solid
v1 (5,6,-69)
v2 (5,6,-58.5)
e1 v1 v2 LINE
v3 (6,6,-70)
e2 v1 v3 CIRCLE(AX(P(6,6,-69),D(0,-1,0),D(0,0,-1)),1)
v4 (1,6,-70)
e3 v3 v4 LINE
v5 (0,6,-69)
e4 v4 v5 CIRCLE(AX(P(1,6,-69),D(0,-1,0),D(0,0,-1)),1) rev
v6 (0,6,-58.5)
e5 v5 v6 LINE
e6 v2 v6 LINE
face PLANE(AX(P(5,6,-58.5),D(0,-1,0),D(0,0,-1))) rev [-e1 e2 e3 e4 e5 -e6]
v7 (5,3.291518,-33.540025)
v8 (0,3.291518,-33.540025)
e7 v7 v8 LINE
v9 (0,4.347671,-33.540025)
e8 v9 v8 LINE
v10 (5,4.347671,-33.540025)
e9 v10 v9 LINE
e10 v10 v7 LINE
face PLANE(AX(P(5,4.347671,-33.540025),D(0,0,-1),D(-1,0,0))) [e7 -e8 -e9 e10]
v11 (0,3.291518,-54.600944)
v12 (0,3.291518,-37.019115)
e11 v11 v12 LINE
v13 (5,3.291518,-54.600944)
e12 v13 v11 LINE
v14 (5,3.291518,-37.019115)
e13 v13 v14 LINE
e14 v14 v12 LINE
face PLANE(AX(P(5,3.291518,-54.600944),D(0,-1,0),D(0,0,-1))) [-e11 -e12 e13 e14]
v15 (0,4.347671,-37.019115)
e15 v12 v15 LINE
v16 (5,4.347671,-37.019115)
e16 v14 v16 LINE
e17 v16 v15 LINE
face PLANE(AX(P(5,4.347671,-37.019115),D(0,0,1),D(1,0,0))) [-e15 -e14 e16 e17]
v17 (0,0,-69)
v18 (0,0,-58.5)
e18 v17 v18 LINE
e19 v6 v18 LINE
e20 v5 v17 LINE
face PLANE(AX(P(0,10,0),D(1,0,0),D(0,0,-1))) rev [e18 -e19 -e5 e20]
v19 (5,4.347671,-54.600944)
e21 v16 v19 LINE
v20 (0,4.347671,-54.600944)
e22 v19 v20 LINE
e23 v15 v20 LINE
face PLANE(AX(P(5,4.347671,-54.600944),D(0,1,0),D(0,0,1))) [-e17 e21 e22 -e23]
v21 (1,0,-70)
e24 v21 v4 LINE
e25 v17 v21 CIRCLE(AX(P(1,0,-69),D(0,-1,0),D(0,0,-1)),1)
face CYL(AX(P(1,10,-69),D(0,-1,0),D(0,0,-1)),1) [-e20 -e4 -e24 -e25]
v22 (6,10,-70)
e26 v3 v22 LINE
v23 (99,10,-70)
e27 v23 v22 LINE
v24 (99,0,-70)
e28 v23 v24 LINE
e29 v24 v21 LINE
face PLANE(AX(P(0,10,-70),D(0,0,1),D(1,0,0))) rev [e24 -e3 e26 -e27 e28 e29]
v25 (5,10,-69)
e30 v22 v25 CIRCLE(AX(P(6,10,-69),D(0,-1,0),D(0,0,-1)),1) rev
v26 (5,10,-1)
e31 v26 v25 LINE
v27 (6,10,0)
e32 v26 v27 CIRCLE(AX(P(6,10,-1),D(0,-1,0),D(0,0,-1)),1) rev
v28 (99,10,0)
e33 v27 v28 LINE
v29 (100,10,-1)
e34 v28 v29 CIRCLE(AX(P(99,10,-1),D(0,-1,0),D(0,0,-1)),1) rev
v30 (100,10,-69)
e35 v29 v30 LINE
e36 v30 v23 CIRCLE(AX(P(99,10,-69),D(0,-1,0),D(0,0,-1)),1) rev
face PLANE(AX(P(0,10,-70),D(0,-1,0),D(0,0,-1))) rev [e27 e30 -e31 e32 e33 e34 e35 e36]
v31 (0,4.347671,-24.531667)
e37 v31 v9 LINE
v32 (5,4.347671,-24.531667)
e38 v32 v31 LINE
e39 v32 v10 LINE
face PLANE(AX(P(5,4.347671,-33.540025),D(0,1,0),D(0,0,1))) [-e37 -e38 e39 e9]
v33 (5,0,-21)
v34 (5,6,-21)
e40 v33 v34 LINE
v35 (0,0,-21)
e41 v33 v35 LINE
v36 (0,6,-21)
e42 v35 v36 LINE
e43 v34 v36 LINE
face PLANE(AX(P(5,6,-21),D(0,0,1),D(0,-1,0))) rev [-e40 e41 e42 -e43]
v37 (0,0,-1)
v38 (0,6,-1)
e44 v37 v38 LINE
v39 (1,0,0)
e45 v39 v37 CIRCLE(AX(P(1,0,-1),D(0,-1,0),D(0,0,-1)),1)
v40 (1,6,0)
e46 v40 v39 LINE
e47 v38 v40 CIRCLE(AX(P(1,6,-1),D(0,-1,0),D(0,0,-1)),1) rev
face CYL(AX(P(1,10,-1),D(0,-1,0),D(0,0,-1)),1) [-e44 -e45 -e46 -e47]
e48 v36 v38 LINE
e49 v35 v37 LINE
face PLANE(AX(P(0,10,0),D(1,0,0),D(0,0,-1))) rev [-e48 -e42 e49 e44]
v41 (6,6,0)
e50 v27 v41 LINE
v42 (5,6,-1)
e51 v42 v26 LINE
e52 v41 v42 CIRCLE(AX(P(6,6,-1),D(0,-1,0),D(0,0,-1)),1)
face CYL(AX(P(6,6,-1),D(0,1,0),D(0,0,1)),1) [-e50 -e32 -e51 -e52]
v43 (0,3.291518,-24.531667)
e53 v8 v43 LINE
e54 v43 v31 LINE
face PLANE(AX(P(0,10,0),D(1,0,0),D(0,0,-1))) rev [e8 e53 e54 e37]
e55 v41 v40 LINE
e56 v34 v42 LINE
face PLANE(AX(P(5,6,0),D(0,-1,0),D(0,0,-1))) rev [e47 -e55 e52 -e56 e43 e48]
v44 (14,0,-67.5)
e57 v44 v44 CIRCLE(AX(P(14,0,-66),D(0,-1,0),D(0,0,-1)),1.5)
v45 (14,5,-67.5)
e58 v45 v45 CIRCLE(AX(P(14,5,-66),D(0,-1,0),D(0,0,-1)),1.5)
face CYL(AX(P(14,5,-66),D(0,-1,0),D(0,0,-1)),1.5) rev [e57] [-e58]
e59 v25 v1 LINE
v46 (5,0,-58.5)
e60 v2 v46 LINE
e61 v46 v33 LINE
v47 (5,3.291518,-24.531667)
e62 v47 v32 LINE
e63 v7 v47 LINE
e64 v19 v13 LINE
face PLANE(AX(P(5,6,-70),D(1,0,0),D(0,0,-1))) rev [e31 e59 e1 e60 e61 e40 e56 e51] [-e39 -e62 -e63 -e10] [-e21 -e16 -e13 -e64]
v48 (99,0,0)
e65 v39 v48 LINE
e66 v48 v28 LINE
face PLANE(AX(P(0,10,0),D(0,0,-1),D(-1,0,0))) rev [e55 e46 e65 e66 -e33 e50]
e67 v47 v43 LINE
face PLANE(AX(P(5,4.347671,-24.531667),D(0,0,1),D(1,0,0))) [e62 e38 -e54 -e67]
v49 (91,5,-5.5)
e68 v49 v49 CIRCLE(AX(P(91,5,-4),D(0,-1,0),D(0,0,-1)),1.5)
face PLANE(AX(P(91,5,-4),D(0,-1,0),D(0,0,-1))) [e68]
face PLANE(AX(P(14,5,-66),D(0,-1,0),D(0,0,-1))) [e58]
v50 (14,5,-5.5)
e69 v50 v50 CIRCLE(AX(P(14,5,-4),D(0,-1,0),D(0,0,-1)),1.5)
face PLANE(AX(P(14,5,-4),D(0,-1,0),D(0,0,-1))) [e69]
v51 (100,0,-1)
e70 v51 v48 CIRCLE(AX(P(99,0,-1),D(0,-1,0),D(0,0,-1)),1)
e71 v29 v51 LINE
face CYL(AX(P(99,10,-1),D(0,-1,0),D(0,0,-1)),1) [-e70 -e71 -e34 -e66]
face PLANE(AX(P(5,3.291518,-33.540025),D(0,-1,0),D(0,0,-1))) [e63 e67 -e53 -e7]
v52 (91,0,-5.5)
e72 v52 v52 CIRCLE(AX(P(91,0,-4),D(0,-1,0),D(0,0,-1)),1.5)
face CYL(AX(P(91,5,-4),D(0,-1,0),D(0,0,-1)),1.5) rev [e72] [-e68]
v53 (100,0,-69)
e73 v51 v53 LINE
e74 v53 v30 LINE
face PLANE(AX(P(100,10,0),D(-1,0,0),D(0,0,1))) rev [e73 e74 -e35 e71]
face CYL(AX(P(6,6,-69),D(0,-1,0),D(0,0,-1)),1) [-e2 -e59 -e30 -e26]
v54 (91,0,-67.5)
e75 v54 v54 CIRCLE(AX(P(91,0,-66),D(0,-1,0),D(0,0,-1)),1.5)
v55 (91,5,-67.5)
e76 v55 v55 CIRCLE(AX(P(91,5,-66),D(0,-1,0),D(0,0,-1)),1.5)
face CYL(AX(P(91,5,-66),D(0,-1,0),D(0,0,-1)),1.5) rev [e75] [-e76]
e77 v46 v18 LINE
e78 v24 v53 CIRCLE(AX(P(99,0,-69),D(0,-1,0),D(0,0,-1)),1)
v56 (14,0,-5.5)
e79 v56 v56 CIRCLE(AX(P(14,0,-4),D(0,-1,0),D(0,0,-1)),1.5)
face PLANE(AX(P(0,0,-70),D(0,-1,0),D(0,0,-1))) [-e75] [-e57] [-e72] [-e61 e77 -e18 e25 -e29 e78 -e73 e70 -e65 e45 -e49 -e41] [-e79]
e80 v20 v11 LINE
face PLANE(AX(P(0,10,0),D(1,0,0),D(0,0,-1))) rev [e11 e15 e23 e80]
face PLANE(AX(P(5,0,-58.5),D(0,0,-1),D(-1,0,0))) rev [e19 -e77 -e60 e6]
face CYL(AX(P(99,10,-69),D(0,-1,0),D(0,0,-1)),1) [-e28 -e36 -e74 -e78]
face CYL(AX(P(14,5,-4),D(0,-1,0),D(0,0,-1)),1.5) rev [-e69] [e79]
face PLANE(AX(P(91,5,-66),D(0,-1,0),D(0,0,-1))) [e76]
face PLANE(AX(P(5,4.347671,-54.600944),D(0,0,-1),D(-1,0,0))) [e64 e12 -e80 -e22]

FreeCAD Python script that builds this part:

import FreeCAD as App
import Part
import Sketcher


def edges_at(feature, points):
    """Names of the edges that pass closest to the given points."""
    edges = feature.Shape.Edges
    near = lambda p: min(range(len(edges)), key=lambda i: edges[i].distToShape(Part.Vertex(*p))[0])
    return sorted({f"Edge{near(p) + 1}" for p in points})


def add_polygon(sketch, points):
    """Adds a closed chain of lines whose ends are joined by coincident constraints."""
    first, n = sketch.GeometryCount, len(points)
    for a, b in zip(points, points[1:] + points[:1]):
        sketch.addGeometry(Part.LineSegment(App.Vector(*a, 0), App.Vector(*b, 0)), False)
    for i in range(n):
        sketch.addConstraint(Sketcher.Constraint("Coincident", first + i, 2, first + (i + 1) % n, 1))

doc = App.newDocument("Part")
params = doc.addObject("Spreadsheet::Sheet", "Params")
for row, (alias, value) in enumerate([
    ("sketch1_width", "100 mm"),
    ("sketch1_height", "70 mm"),
    ("pad1_length", "10 mm"),
    ("sketch2_diameter", "3 mm"),
    ("pocket1_length", "5 mm"),
    ("sketch3_width", "4 mm"),
    ("sketch3_width2", "6 mm"),
    ("sketch3_height", "21 mm"),
    ("sketch3_height2", "70 mm"),
    ("sketch3_height3", "11.5 mm"),
    ("pocket2_length", "5 mm"),
    ("fillet_radius", "1 mm"),
], start=1):
    params.set(f"A{row}", alias)
    params.set(f"B{row}", "=" + value)
    params.setAlias(f"B{row}", alias)

body = doc.addObject("PartDesign::Body", "Body")

# Sketch on XZ plane
sketch1 = body.newObject("Sketcher::SketchObject", "Sketch")
sketch1.AttachmentSupport = (doc.getObject("XZ_Plane"), [""])
sketch1.MapMode = "FlatFace"
add_polygon(sketch1, [(0, -70), (0, 0), (100, 0), (100, -70)])  # lines 0-3
sketch1.addConstraint(Sketcher.Constraint("Vertical", 0))
sketch1.addConstraint(Sketcher.Constraint("Horizontal", 1))
sketch1.addConstraint(Sketcher.Constraint("Vertical", 2))
sketch1.addConstraint(Sketcher.Constraint("Horizontal", 3))
sketch1.addConstraint(Sketcher.Constraint("Coincident", 0, 2, -1, 1))
sketch1.addConstraint(Sketcher.Constraint("DistanceX", 1, 1, 1, 2, 100.0))
sketch1.addConstraint(Sketcher.Constraint("DistanceY", 0, 1, 0, 2, 70.0))
sketch1.setExpression("Constraints[9]", "Params.sketch1_width")
sketch1.setExpression("Constraints[10]", "Params.sketch1_height")
pad1 = body.newObject("PartDesign::Pad", "Pad")
pad1.Profile = sketch1
pad1.setExpression("Length", "Params.pad1_length")
pad1.Reversed = True

# Sketch on XZ plane
sketch2 = body.newObject("Sketcher::SketchObject", "Sketch001")
sketch2.AttachmentSupport = (doc.getObject("XZ_Plane"), [""])
sketch2.MapMode = "FlatFace"
sketch2.addGeometry(Part.Circle(App.Vector(14, -4, 0), App.Vector(0, 0, 1), 1.5), False)
sketch2.addGeometry(Part.Circle(App.Vector(14, -66, 0), App.Vector(0, 0, 1), 1.5), False)
sketch2.addGeometry(Part.Circle(App.Vector(91, -66, 0), App.Vector(0, 0, 1), 1.5), False)
sketch2.addGeometry(Part.Circle(App.Vector(91, -4, 0), App.Vector(0, 0, 1), 1.5), False)
sketch2.addConstraint(Sketcher.Constraint("Equal", 0, 1))
sketch2.addConstraint(Sketcher.Constraint("Equal", 1, 2))
sketch2.addConstraint(Sketcher.Constraint("Equal", 2, 3))
sketch2.addConstraint(Sketcher.Constraint("Horizontal", 1, 3, 2, 3))
sketch2.addConstraint(Sketcher.Constraint("Horizontal", 0, 3, 3, 3))
sketch2.addConstraint(Sketcher.Constraint("Vertical", 0, 3, 1, 3))
sketch2.addConstraint(Sketcher.Constraint("Vertical", 2, 3, 3, 3))
sketch2.addConstraint(Sketcher.Constraint("Diameter", 0, 3.0))
sketch2.addConstraint(Sketcher.Constraint("DistanceX", -1, 1, 0, 3, 14.0))
sketch2.addConstraint(Sketcher.Constraint("DistanceY", 0, 3, -1, 1, 4.0))
sketch2.addConstraint(Sketcher.Constraint("DistanceY", 1, 3, -1, 1, 66.0))
sketch2.addConstraint(Sketcher.Constraint("DistanceX", -1, 1, 2, 3, 91.0))
sketch2.setExpression("Constraints[7]", "Params.sketch2_diameter")
pocket1 = body.newObject("PartDesign::Pocket", "Pocket")
pocket1.Profile = sketch2
pocket1.setExpression("Length", "Params.pocket1_length")

# Sketch on YZ plane
sketch3 = body.newObject("Sketcher::SketchObject", "Sketch002")
sketch3.AttachmentSupport = (doc.getObject("YZ_Plane"), [""])
sketch3.MapMode = "FlatFace"
add_polygon(sketch3, [(10, -70), (6, -70), (6, -58.5), (0, -58.5), (0, -21), (6, -21), (6, 0), (10, 0)])  # lines 0-7
add_polygon(sketch3, [(3.3, -33.5), (4.3, -33.5), (4.3, -24.5), (3.3, -24.5)])  # lines 8-11
add_polygon(sketch3, [(3.3, -54.6), (4.3, -54.6), (4.3, -37), (3.3, -37)])  # lines 12-15
sketch3.addConstraint(Sketcher.Constraint("Horizontal", 0))
sketch3.addConstraint(Sketcher.Constraint("Vertical", 1))
sketch3.addConstraint(Sketcher.Constraint("Horizontal", 2))
sketch3.addConstraint(Sketcher.Constraint("Vertical", 3))
sketch3.addConstraint(Sketcher.Constraint("Horizontal", 4))
sketch3.addConstraint(Sketcher.Constraint("Vertical", 5))
sketch3.addConstraint(Sketcher.Constraint("Horizontal", 6))
sketch3.addConstraint(Sketcher.Constraint("Vertical", 7))
sketch3.addConstraint(Sketcher.Constraint("Horizontal", 8))
sketch3.addConstraint(Sketcher.Constraint("Vertical", 9))
sketch3.addConstraint(Sketcher.Constraint("Horizontal", 10))
sketch3.addConstraint(Sketcher.Constraint("Vertical", 11))
sketch3.addConstraint(Sketcher.Constraint("Horizontal", 12))
sketch3.addConstraint(Sketcher.Constraint("Vertical", 13))
sketch3.addConstraint(Sketcher.Constraint("Horizontal", 14))
sketch3.addConstraint(Sketcher.Constraint("Vertical", 15))
sketch3.addConstraint(Sketcher.Constraint("PointOnObject", 2, 2, -2))
sketch3.addConstraint(Sketcher.Constraint("PointOnObject", 5, 2, -1))
sketch3.addConstraint(Sketcher.Constraint("Vertical", 1, 2, 4, 2))
sketch3.addConstraint(Sketcher.Constraint("Vertical", 9, 2, 12, 2))
sketch3.addConstraint(Sketcher.Constraint("Vertical", 11, 2, 14, 2))
sketch3.addConstraint(Sketcher.Constraint("DistanceX", 0, 2, 0, 1, 4.0))
sketch3.addConstraint(Sketcher.Constraint("DistanceX", 2, 2, 2, 1, 6.0))
sketch3.addConstraint(Sketcher.Constraint("DistanceY", 5, 1, 5, 2, 21.0))
sketch3.addConstraint(Sketcher.Constraint("DistanceY", 7, 2, 7, 1, 70.0))
sketch3.addConstraint(Sketcher.Constraint("DistanceY", 1, 1, 1, 2, 11.5))
sketch3.addConstraint(Sketcher.Constraint("DistanceY", 13, 1, 13, 2, 17.58183))
sketch3.addConstraint(Sketcher.Constraint("DistanceX", 8, 1, 8, 2, 1.056152))
sketch3.addConstraint(Sketcher.Constraint("DistanceY", 9, 1, 9, 2, 9.008358))
sketch3.addConstraint(Sketcher.Constraint("DistanceX", -1, 1, 8, 2, 4.347671))
sketch3.addConstraint(Sketcher.Constraint("DistanceY", 12, 2, 8, 2, 21.060919))
sketch3.addConstraint(Sketcher.Constraint("DistanceY", 8, 2, -1, 1, 33.540025))
sketch3.setExpression("Constraints[37]", "Params.sketch3_width")
sketch3.setExpression("Constraints[38]", "Params.sketch3_width2")
sketch3.setExpression("Constraints[39]", "Params.sketch3_height")
sketch3.setExpression("Constraints[40]", "Params.sketch3_height2")
sketch3.setExpression("Constraints[41]", "Params.sketch3_height3")
pocket2 = body.newObject("PartDesign::Pocket", "Pocket001")
pocket2.Profile = sketch3
pocket2.setExpression("Length", "Params.pocket2_length")
pocket2.Reversed = True
doc.recompute()

fillet = body.newObject("PartDesign::Fillet", "Fillet")
fillet.Base = (pocket2, edges_at(pocket2, [
    (0, 3, -70),
    (0, 3, 0),
    (5, 8, -70),
    (5, 8, 0),
    (100, 5, -70),
    (100, 5, 0),
]))
fillet.setExpression("Radius", "Params.fillet_radius")

doc.recompute()
